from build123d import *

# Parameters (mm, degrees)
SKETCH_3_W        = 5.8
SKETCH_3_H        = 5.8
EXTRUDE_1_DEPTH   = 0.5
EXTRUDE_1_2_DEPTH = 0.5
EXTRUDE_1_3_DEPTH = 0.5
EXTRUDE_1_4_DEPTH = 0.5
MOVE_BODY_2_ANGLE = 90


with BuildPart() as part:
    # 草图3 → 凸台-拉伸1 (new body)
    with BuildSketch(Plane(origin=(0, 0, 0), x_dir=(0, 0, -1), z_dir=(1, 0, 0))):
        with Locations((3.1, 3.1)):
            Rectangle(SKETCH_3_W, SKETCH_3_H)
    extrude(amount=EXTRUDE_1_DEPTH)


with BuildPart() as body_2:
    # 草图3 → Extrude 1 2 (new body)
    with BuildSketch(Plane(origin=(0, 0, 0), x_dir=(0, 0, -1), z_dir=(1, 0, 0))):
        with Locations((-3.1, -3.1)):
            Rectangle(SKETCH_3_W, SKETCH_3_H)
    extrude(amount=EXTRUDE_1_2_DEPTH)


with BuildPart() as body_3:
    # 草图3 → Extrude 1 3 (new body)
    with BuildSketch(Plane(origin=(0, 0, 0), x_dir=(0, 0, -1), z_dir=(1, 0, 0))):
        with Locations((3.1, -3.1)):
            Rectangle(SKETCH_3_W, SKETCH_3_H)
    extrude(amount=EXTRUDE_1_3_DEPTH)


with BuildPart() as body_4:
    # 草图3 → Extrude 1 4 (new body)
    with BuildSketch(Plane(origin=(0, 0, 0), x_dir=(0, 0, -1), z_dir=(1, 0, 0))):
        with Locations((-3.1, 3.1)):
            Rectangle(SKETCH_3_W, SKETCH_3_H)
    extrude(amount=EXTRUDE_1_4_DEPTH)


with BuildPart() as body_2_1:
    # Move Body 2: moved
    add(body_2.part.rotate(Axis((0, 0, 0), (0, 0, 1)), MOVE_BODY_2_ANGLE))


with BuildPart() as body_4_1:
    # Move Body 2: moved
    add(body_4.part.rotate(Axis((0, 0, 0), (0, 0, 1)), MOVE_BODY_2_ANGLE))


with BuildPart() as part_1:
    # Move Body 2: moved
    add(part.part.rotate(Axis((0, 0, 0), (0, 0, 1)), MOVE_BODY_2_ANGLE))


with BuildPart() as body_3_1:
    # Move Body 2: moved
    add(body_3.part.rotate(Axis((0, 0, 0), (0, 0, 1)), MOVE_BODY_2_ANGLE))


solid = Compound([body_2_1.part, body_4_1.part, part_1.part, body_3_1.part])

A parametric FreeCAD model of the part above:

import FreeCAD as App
import Part
import Sketcher
Q = App.Units.Quantity

doc = App.newDocument("Part")
body = doc.addObject("PartDesign::Body", "Body")

# Sketch on YZ plane
sketch1 = body.newObject("Sketcher::SketchObject", "Sketch")
sketch1.AttachmentSupport = (doc.getObject("YZ_Plane"), [""])
sketch1.MapMode = "FlatFace"
sketch1.addGeometry(Part.LineSegment(App.Vector(6, 0, 0), App.Vector(0, 0, 0)), False)
sketch1.addGeometry(Part.LineSegment(App.Vector(0, 0, 0), App.Vector(0, -6, 0)), False)
sketch1.addGeometry(Part.LineSegment(App.Vector(0, -6, 0), App.Vector(6, -6, 0)), False)
sketch1.addGeometry(Part.LineSegment(App.Vector(6, -6, 0), App.Vector(6, 0, 0)), False)
sketch1.addConstraint(Sketcher.Constraint("Coincident", 0, 2, 1, 1))
sketch1.addConstraint(Sketcher.Constraint("Coincident", 1, 2, 2, 1))
sketch1.addConstraint(Sketcher.Constraint("Coincident", 2, 2, 3, 1))
sketch1.addConstraint(Sketcher.Constraint("Coincident", 3, 2, 0, 1))
sketch1.addConstraint(Sketcher.Constraint("Horizontal", 0))
sketch1.addConstraint(Sketcher.Constraint("Vertical", 1))
sketch1.addConstraint(Sketcher.Constraint("Horizontal", 2))
sketch1.addConstraint(Sketcher.Constraint("Vertical", 3))
sketch1.addConstraint(Sketcher.Constraint("Equal", 2, 1))
sketch1.addConstraint(Sketcher.Constraint("DistanceX", 0, 2, 0, 1, Q("5.8 mm")))
sketch1.addConstraint(Sketcher.Constraint("DistanceY", 1, 2, -1, 1, Q("6 mm")))
sketch1.addConstraint(Sketcher.Constraint("DistanceX", -1, 1, 2, 2, Q("6 mm")))
pad1 = body.newObject("PartDesign::Pad", "Pad")
pad1.Profile = sketch1
pad1.Length = 0.5
body2 = doc.addObject("PartDesign::Body", "Body001")

# Sketch on YZ plane
sketch2 = body2.newObject("Sketcher::SketchObject", "Sketch001")
sketch2.AttachmentSupport = (doc.getObject("YZ_Plane001"), [""])
sketch2.MapMode = "FlatFace"
sketch2.addGeometry(Part.LineSegment(App.Vector(0, 6, 0), App.Vector(-6, 6, 0)), False)
sketch2.addGeometry(Part.LineSegment(App.Vector(-6, 6, 0), App.Vector(-6, 0, 0)), False)
sketch2.addGeometry(Part.LineSegment(App.Vector(-6, 0, 0), App.Vector(0, 0, 0)), False)
sketch2.addGeometry(Part.LineSegment(App.Vector(0, 0, 0), App.Vector(0, 6, 0)), False)
sketch2.addConstraint(Sketcher.Constraint("Coincident", 0, 2, 1, 1))
sketch2.addConstraint(Sketcher.Constraint("Coincident", 1, 2, 2, 1))
sketch2.addConstraint(Sketcher.Constraint("Coincident", 2, 2, 3, 1))
sketch2.addConstraint(Sketcher.Constraint("Coincident", 3, 2, 0, 1))
sketch2.addConstraint(Sketcher.Constraint("Horizontal", 0))
sketch2.addConstraint(Sketcher.Constraint("Vertical", 1))
sketch2.addConstraint(Sketcher.Constraint("Horizontal", 2))
sketch2.addConstraint(Sketcher.Constraint("Vertical", 3))
sketch2.addConstraint(Sketcher.Constraint("Equal", 2, 1))
sketch2.addConstraint(Sketcher.Constraint("DistanceX", 0, 2, 0, 1, Q("5.8 mm")))
sketch2.addConstraint(Sketcher.Constraint("DistanceX", 0, 2, -1, 1, Q("6 mm")))
sketch2.addConstraint(Sketcher.Constraint("DistanceY", -1, 1, 0, 2, Q("6 mm")))
pad2 = body2.newObject("PartDesign::Pad", "Pad001")
pad2.Profile = sketch2
pad2.Length = 0.5
body3 = doc.addObject("PartDesign::Body", "Body002")

# Sketch on YZ plane
sketch3 = body3.newObject("Sketcher::SketchObject", "Sketch002")
sketch3.AttachmentSupport = (doc.getObject("YZ_Plane002"), [""])
sketch3.MapMode = "FlatFace"
sketch3.addGeometry(Part.LineSegment(App.Vector(0, 0, 0), App.Vector(-6, 0, 0)), False)
sketch3.addGeometry(Part.LineSegment(App.Vector(-6, 0, 0), App.Vector(-6, -6, 0)), False)
sketch3.addGeometry(Part.LineSegment(App.Vector(-6, -6, 0), App.Vector(0, -6, 0)), False)
sketch3.addGeometry(Part.LineSegment(App.Vector(0, -6, 0), App.Vector(0, 0, 0)), False)
sketch3.addConstraint(Sketcher.Constraint("Coincident", 0, 2, 1, 1))
sketch3.addConstraint(Sketcher.Constraint("Coincident", 1, 2, 2, 1))
sketch3.addConstraint(Sketcher.Constraint("Coincident", 2, 2, 3, 1))
sketch3.addConstraint(Sketcher.Constraint("Coincident", 3, 2, 0, 1))
sketch3.addConstraint(Sketcher.Constraint("Horizontal", 0))
sketch3.addConstraint(Sketcher.Constraint("Vertical", 1))
sketch3.addConstraint(Sketcher.Constraint("Horizontal", 2))
sketch3.addConstraint(Sketcher.Constraint("Vertical", 3))
sketch3.addConstraint(Sketcher.Constraint("Equal", 2, 1))
sketch3.addConstraint(Sketcher.Constraint("DistanceX", 0, 2, 0, 1, Q("5.8 mm")))
sketch3.addConstraint(Sketcher.Constraint("DistanceX", 0, 2, -1, 1, Q("6 mm")))
sketch3.addConstraint(Sketcher.Constraint("DistanceY", 1, 2, -1, 1, Q("6 mm")))
pad3 = body3.newObject("PartDesign::Pad", "Pad002")
pad3.Profile = sketch3
pad3.Length = 0.5
body4 = doc.addObject("PartDesign::Body", "Body003")

# Sketch on YZ plane
sketch4 = body4.newObject("Sketcher::SketchObject", "Sketch003")
sketch4.AttachmentSupport = (doc.getObject("YZ_Plane003"), [""])
sketch4.MapMode = "FlatFace"
sketch4.addGeometry(Part.LineSegment(App.Vector(6, 6, 0), App.Vector(0, 6, 0)), False)
sketch4.addGeometry(Part.LineSegment(App.Vector(0, 6, 0), App.Vector(0, 0, 0)), False)
sketch4.addGeometry(Part.LineSegment(App.Vector(0, 0, 0), App.Vector(6, 0, 0)), False)
sketch4.addGeometry(Part.LineSegment(App.Vector(6, 0, 0), App.Vector(6, 6, 0)), False)
sketch4.addConstraint(Sketcher.Constraint("Coincident", 0, 2, 1, 1))
sketch4.addConstraint(Sketcher.Constraint("Coincident", 1, 2, 2, 1))
sketch4.addConstraint(Sketcher.Constraint("Coincident", 2, 2, 3, 1))
sketch4.addConstraint(Sketcher.Constraint("Coincident", 3, 2, 0, 1))
sketch4.addConstraint(Sketcher.Constraint("Horizontal", 0))
sketch4.addConstraint(Sketcher.Constraint("Vertical", 1))
sketch4.addConstraint(Sketcher.Constraint("Horizontal", 2))
sketch4.addConstraint(Sketcher.Constraint("Vertical", 3))
sketch4.addConstraint(Sketcher.Constraint("Equal", 2, 1))
sketch4.addConstraint(Sketcher.Constraint("DistanceX", 0, 2, 0, 1, Q("5.8 mm")))
sketch4.addConstraint(Sketcher.Constraint("DistanceY", -1, 1, 0, 2, Q("6 mm")))
sketch4.addConstraint(Sketcher.Constraint("DistanceX", -1, 1, 2, 2, Q("6 mm")))
pad4 = body4.newObject("PartDesign::Pad", "Pad003")
pad4.Profile = sketch4
pad4.Length = 0.5
body5 = doc.addObject("PartDesign::Body", "Body004")
doc.recompute()

body2.Placement = App.Placement(App.Vector(0, 0, 0), App.Rotation(App.Vector(0, 0, 1), 90))
boolean = body5.newObject("PartDesign::Boolean", "Boolean")
boolean.Type = "Fuse"
boolean.addObjects([body2])
body6 = doc.addObject("PartDesign::Body", "Body005")
doc.recompute()

body4.Placement = App.Placement(App.Vector(0, 0, 0), App.Rotation(App.Vector(0, 0, 1), 90))
boolean2 = body6.newObject("PartDesign::Boolean", "Boolean001")
boolean2.Type = "Fuse"
boolean2.addObjects([body4])
body7 = doc.addObject("PartDesign::Body", "Body006")
doc.recompute()

body.Placement = App.Placement(App.Vector(0, 0, 0), App.Rotation(App.Vector(0, 0, 1), 90))
boolean3 = body7.newObject("PartDesign::Boolean", "Boolean002")
boolean3.Type = "Fuse"
boolean3.addObjects([body])
body8 = doc.addObject("PartDesign::Body", "Body007")
doc.recompute()

body3.Placement = App.Placement(App.Vector(0, 0, 0), App.Rotation(App.Vector(0, 0, 1), 90))
boolean4 = body8.newObject("PartDesign::Boolean", "Boolean003")
boolean4.Type = "Fuse"
boolean4.addObjects([body3])

doc.recompute()
